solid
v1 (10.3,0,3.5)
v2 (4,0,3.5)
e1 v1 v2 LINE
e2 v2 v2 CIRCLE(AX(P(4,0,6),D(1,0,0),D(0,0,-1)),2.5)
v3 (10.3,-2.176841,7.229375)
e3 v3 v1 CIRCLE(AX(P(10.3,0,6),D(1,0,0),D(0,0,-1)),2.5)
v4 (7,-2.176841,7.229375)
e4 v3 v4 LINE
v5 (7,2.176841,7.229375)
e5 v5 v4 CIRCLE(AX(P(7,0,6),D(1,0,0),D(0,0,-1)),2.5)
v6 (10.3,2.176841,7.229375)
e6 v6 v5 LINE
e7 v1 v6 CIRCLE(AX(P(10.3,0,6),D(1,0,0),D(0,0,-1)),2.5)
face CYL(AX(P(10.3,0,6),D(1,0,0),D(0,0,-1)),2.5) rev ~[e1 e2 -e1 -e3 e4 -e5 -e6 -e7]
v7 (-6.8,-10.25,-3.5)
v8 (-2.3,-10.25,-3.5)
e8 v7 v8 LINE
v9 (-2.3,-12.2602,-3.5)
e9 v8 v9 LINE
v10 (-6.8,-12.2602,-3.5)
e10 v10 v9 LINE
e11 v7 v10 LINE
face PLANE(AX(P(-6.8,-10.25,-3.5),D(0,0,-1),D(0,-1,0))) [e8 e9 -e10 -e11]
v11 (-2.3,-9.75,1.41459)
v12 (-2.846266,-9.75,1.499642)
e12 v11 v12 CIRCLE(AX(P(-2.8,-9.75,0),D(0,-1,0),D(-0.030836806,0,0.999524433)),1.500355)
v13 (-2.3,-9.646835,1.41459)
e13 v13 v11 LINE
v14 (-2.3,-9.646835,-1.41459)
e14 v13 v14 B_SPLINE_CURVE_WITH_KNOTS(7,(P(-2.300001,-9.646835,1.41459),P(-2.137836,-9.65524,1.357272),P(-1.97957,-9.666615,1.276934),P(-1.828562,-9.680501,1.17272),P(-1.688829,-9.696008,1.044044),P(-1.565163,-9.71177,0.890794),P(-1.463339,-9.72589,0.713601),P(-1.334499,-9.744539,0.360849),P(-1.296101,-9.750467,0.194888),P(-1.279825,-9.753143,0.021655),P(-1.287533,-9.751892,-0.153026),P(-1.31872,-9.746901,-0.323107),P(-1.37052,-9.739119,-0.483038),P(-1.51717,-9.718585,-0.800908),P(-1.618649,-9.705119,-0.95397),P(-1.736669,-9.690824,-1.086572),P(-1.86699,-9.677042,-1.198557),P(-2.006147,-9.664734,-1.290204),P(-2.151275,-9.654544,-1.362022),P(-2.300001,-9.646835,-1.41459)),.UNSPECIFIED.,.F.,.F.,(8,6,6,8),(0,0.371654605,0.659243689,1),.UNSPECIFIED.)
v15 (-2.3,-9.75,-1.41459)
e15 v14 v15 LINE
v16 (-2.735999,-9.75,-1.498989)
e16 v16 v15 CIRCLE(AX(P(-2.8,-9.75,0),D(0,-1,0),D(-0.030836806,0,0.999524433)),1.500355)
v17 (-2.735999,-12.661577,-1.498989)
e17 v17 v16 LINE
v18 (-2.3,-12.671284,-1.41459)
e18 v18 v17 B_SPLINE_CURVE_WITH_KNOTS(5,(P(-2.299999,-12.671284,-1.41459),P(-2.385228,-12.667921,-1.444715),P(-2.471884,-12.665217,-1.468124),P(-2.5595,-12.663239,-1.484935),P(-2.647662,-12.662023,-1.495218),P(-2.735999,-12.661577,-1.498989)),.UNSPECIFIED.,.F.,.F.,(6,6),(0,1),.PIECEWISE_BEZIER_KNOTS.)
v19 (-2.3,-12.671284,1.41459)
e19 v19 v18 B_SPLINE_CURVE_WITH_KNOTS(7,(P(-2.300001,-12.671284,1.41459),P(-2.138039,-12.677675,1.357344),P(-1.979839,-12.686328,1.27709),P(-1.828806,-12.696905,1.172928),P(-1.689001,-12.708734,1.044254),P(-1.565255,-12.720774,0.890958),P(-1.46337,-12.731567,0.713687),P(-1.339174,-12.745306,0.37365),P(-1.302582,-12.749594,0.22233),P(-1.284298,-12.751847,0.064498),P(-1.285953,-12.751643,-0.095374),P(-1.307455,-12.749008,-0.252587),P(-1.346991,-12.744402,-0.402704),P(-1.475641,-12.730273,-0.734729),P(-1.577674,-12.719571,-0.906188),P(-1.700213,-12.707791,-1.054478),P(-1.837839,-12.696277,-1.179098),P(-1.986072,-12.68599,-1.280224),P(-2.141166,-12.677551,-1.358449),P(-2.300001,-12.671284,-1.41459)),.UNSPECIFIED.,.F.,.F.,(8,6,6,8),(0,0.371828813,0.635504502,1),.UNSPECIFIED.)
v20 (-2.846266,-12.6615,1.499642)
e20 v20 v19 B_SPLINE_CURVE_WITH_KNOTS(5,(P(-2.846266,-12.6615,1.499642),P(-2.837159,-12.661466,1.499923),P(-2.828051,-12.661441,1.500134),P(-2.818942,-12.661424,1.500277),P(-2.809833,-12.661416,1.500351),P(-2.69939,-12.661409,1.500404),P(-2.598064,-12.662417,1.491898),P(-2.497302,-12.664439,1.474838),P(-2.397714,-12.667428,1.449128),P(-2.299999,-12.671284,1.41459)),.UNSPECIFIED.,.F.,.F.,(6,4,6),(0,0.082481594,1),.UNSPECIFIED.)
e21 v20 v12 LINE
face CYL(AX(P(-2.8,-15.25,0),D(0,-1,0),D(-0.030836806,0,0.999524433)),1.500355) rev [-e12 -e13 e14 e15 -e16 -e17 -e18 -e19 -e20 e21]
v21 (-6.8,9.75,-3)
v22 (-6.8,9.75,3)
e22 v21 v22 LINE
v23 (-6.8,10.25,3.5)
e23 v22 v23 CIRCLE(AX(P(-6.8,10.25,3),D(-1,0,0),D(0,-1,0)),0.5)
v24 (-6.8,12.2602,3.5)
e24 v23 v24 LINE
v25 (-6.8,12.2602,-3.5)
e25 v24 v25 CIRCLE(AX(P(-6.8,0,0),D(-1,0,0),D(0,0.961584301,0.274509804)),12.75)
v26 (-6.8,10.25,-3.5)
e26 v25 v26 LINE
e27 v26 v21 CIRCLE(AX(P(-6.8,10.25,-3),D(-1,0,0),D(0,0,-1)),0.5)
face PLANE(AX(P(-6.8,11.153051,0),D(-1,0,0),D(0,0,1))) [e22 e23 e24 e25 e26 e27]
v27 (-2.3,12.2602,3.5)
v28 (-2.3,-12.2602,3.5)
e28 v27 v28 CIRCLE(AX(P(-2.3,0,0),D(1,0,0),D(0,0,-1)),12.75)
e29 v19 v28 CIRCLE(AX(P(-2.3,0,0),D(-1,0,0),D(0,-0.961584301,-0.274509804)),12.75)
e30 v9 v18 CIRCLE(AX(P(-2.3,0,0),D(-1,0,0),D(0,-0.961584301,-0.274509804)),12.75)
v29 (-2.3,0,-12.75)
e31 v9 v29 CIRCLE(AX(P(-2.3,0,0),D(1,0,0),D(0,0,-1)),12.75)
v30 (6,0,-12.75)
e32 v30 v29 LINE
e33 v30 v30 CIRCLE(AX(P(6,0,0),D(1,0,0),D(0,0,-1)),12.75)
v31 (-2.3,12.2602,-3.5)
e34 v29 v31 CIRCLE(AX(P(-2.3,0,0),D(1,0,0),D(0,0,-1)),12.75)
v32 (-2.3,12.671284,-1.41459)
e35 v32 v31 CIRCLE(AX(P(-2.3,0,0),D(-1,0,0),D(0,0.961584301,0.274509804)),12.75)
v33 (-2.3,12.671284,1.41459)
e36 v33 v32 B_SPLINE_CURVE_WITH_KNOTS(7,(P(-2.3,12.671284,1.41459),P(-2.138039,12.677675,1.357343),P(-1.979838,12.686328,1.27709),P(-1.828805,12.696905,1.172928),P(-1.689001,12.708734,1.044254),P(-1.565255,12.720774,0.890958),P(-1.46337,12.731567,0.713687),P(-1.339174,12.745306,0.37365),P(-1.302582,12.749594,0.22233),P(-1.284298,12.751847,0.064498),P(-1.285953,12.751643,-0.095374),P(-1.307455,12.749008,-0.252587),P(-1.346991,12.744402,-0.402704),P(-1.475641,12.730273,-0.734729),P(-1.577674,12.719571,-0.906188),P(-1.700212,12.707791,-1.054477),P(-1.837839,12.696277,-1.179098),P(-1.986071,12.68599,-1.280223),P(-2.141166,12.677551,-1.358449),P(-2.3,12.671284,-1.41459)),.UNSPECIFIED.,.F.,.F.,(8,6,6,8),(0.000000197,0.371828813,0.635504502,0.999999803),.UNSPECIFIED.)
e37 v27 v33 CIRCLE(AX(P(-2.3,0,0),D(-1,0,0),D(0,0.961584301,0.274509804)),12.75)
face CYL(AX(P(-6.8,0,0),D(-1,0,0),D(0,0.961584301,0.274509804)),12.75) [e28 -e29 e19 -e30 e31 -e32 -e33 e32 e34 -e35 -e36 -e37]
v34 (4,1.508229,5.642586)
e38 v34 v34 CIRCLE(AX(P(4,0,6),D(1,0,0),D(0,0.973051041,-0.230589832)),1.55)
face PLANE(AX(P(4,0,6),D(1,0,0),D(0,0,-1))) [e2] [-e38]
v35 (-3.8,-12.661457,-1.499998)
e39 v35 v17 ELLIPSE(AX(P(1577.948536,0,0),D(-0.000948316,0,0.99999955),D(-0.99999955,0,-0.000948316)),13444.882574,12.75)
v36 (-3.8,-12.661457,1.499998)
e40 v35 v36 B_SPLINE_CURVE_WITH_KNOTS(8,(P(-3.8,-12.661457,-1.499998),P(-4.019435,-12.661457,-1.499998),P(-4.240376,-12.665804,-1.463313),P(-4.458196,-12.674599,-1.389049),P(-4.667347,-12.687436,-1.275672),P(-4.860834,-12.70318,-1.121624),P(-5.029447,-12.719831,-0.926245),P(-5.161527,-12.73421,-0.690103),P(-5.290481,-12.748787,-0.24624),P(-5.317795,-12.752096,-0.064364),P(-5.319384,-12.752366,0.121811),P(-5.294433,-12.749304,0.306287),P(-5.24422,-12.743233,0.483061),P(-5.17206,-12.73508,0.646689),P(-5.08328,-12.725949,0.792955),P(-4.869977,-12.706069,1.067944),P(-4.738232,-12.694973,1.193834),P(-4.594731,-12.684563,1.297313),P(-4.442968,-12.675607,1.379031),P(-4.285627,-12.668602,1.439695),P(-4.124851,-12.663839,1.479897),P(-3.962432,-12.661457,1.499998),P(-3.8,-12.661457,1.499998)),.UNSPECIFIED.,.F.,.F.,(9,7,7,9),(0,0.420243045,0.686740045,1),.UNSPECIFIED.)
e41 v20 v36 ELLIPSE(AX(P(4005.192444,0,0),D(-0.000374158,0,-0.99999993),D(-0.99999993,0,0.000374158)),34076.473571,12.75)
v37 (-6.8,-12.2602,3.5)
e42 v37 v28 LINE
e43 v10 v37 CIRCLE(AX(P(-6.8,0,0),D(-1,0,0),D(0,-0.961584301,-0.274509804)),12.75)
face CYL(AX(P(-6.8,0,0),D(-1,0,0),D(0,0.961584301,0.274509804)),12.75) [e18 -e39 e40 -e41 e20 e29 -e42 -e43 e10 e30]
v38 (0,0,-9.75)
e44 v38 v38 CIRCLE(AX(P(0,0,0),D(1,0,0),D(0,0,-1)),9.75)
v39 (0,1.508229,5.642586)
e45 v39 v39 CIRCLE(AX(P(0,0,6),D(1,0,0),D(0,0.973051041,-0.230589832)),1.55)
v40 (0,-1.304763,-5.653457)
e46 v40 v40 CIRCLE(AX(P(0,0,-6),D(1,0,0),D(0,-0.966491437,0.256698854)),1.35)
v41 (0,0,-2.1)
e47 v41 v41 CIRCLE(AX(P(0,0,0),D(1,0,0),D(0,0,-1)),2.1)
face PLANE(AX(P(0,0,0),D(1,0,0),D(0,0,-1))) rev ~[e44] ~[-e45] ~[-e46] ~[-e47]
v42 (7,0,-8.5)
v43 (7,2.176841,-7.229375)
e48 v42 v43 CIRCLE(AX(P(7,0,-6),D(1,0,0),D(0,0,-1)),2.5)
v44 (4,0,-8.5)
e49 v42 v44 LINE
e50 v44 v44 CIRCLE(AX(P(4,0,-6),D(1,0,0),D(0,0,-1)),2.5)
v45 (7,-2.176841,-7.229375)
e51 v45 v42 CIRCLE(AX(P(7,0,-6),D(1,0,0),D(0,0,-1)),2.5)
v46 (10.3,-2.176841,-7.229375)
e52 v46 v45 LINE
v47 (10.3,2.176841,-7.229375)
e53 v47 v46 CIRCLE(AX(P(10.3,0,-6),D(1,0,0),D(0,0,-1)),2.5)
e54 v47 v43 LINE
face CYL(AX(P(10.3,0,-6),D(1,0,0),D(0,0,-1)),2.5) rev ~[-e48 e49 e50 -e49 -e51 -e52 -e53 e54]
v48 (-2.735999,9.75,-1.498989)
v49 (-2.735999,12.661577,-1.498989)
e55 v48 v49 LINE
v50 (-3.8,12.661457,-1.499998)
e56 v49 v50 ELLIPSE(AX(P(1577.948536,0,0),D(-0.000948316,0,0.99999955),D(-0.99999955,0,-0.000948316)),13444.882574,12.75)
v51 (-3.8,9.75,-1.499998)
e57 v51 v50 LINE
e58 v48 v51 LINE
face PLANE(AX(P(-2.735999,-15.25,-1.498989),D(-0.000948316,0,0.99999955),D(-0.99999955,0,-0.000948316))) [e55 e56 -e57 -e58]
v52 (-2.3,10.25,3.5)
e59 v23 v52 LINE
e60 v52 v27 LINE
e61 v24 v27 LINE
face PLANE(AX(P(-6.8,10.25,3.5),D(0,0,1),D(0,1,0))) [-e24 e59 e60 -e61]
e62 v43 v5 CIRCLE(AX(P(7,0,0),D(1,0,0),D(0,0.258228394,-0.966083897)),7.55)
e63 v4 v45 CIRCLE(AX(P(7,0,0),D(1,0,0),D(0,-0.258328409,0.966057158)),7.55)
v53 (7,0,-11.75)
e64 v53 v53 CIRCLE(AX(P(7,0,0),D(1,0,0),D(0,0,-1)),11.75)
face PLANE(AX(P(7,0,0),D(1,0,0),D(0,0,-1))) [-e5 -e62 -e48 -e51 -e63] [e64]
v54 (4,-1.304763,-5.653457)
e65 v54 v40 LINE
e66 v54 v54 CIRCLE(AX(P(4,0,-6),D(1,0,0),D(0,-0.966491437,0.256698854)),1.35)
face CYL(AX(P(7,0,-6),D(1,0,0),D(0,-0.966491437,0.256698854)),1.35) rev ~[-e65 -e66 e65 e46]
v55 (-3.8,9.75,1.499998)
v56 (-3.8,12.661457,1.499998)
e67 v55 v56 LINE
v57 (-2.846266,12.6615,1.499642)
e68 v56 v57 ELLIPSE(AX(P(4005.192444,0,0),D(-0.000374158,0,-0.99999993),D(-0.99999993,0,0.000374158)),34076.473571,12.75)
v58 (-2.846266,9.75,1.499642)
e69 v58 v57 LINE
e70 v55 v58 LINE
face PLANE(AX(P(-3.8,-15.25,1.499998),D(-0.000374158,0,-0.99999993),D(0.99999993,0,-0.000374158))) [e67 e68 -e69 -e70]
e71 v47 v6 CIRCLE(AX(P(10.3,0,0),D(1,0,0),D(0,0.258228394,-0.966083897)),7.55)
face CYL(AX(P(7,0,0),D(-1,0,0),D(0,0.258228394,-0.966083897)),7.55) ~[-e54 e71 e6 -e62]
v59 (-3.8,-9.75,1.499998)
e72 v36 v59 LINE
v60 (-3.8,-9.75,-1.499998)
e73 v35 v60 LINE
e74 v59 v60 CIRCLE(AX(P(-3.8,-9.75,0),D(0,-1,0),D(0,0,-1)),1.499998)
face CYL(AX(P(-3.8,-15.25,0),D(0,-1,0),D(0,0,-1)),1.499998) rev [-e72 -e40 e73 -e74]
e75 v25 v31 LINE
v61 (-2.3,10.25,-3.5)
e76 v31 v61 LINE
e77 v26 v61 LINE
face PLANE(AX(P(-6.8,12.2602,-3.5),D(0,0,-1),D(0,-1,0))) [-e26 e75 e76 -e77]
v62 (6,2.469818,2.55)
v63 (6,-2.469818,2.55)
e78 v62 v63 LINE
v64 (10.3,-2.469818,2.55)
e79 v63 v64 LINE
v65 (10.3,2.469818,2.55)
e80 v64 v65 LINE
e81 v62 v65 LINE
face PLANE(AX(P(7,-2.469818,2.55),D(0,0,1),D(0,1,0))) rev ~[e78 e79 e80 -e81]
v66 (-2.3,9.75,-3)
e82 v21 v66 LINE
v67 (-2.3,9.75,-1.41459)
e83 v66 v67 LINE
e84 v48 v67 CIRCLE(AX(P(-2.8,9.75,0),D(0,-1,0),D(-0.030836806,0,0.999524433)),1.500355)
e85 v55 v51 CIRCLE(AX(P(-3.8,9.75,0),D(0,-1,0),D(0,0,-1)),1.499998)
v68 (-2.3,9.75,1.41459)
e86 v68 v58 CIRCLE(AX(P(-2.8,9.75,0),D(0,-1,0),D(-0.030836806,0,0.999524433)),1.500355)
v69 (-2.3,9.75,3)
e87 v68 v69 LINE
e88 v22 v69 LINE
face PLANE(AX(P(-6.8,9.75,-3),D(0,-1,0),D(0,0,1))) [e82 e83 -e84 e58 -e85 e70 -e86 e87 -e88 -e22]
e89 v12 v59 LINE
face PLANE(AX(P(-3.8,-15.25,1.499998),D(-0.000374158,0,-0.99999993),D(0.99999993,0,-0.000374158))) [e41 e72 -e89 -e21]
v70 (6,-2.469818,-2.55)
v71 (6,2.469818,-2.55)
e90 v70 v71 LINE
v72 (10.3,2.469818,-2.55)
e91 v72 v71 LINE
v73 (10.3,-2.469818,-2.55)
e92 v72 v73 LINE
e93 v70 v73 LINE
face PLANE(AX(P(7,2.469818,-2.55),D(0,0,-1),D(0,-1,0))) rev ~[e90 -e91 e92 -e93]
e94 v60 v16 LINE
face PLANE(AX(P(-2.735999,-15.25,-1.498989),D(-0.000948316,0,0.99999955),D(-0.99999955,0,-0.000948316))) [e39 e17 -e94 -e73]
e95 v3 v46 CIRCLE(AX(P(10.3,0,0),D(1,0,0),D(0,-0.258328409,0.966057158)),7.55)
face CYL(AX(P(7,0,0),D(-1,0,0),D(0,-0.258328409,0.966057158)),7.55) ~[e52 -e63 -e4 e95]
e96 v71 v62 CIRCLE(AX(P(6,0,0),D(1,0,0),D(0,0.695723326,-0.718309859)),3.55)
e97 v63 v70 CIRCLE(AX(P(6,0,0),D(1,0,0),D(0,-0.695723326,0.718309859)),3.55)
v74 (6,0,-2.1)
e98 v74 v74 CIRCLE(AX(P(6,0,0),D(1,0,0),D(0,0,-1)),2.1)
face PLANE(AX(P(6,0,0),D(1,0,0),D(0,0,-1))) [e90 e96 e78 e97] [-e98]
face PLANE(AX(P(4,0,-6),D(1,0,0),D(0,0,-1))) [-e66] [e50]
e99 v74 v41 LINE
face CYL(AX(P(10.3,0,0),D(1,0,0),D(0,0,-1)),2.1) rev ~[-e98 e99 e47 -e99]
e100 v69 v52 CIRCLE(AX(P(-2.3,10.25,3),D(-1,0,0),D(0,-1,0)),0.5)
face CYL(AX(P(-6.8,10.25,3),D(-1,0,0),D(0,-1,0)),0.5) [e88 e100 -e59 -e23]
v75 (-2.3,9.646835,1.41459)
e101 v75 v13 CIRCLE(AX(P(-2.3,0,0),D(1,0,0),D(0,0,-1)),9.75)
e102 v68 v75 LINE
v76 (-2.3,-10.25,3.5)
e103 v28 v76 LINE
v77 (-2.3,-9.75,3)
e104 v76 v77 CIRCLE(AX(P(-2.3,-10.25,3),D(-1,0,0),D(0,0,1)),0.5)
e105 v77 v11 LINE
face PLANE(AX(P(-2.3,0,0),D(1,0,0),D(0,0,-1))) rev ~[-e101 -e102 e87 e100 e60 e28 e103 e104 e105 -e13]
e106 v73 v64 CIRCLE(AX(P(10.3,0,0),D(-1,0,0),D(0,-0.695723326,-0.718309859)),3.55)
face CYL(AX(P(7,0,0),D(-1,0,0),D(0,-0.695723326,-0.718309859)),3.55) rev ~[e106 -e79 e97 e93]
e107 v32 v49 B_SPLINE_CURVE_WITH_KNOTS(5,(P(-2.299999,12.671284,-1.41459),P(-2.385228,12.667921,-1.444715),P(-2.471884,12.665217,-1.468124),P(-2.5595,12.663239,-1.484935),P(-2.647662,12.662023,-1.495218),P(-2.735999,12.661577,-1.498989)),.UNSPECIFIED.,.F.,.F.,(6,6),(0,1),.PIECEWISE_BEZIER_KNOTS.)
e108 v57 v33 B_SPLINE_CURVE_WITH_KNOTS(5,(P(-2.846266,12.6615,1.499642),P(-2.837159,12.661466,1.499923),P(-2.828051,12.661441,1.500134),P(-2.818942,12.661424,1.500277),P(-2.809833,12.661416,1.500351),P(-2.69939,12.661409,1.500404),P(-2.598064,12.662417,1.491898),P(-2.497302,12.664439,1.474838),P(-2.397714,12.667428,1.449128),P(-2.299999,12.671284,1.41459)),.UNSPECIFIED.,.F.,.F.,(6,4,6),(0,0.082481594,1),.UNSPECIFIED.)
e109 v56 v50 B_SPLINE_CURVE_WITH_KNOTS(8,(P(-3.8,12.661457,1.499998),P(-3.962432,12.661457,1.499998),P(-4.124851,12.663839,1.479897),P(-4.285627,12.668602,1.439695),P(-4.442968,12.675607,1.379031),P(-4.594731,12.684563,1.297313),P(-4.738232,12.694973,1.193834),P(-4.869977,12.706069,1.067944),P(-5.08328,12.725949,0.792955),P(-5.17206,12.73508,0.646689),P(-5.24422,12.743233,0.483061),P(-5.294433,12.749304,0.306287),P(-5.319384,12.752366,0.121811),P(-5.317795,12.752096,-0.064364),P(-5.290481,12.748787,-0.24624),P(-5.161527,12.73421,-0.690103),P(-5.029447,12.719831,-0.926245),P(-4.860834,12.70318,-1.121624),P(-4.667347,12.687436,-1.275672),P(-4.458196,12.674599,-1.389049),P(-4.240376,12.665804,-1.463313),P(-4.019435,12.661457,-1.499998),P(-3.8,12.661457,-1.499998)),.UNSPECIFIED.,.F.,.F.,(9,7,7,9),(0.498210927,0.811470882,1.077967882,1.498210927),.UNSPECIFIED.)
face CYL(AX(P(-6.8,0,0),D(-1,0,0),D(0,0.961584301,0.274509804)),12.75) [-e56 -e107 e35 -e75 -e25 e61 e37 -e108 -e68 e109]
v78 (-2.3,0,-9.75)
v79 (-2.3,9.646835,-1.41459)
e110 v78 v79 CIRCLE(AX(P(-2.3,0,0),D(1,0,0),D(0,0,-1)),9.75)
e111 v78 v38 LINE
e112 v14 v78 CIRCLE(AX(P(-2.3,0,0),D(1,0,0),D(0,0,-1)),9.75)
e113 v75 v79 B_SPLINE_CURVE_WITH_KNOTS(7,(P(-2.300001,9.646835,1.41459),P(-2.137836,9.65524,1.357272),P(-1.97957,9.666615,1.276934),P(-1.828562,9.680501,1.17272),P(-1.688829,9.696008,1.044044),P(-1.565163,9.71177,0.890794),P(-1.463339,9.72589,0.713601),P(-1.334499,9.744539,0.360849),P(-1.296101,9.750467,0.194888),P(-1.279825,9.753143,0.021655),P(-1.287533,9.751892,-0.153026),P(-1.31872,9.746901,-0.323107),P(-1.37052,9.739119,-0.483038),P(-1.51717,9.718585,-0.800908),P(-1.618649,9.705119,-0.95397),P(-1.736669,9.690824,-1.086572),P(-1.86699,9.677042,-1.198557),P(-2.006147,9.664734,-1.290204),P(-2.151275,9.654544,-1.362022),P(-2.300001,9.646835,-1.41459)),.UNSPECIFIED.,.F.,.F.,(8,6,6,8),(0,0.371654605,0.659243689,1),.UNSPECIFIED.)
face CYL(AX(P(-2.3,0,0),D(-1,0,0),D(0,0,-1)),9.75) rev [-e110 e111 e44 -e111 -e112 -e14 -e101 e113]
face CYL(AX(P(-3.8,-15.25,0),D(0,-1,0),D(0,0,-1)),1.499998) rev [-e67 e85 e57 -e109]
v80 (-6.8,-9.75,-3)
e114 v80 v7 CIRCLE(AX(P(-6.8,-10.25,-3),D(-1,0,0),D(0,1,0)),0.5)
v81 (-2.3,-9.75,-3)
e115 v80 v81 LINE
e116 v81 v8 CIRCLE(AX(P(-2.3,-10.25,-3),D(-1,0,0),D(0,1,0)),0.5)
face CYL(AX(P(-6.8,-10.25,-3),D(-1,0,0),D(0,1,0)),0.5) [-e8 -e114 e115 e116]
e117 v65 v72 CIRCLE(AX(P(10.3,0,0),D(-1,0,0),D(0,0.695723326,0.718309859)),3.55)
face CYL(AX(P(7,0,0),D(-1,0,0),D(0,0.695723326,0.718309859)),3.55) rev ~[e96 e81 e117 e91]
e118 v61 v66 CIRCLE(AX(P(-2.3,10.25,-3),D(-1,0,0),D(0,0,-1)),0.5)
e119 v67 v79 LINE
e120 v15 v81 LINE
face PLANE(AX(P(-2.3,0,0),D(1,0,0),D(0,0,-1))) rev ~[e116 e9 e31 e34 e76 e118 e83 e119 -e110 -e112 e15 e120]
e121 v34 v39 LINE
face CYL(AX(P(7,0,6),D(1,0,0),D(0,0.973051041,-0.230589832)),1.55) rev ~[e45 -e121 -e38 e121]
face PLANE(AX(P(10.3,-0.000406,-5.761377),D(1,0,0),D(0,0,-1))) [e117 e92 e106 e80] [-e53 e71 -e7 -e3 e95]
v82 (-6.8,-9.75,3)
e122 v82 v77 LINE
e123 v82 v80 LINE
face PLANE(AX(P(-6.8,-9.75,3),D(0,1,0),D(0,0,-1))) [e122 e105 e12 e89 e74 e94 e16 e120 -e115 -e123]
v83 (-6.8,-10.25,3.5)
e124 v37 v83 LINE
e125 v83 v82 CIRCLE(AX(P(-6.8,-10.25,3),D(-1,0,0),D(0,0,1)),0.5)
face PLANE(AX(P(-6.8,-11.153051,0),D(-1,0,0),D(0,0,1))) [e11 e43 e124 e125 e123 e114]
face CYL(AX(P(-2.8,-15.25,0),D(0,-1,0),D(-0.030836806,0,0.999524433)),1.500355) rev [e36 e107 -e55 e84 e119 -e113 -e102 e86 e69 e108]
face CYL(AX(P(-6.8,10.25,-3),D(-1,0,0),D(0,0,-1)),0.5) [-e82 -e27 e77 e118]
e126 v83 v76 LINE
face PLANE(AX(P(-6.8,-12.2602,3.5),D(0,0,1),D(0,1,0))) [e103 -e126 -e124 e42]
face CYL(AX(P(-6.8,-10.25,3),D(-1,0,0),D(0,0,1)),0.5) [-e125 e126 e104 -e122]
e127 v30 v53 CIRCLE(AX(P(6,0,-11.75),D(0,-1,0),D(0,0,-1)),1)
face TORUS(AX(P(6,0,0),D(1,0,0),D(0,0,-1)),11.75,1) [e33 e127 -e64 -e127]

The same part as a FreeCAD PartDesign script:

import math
import FreeCAD as App
import Part
import Sketcher
Q = App.Units.Quantity


def edges_at(feature, points):
    """Names of the edges that pass closest to the given points."""
    edges = feature.Shape.Edges
    near = lambda p: min(range(len(edges)), key=lambda i: edges[i].distToShape(Part.Vertex(*p))[0])
    return sorted({f"Edge{near(p) + 1}" for p in points})

doc = App.newDocument("Part")
body = doc.addObject("PartDesign::Body", "Body")

# Sketch on YZ plane
sketch1 = body.newObject("Sketcher::SketchObject", "Sketch")
sketch1.AttachmentSupport = (doc.getObject("YZ_Plane"), [""])
sketch1.MapMode = "FlatFace"
sketch1.addGeometry(Part.Circle(App.Vector(0, 0, 0), App.Vector(0, 0, 1), 12.75), False)
sketch1.addConstraint(Sketcher.Constraint("Coincident", 0, 3, -1, 1))
sketch1.addConstraint(Sketcher.Constraint("Diameter", 0, Q("25.5 mm")))
pad1 = body.newObject("PartDesign::Pad", "Pad")
pad1.Profile = sketch1
pad1.Length = 7

# Sketch on YZ plane
sketch2 = body.newObject("Sketcher::SketchObject", "Sketch001")
sketch2.AttachmentSupport = (doc.getObject("YZ_Plane"), [""])
sketch2.MapMode = "FlatFace"
sketch2.AttachmentOffset = App.Placement(App.Vector(0, 0, -2.3), App.Rotation())
sketch2.addGeometry(Part.Circle(App.Vector(0, 0, 0), App.Vector(0, 0, 1), 12.75), False)
sketch2.addGeometry(Part.Circle(App.Vector(0, 0, 0), App.Vector(0, 0, 1), 9.75), False)
sketch2.addConstraint(Sketcher.Constraint("Coincident", 0, 3, -1, 1))
sketch2.addConstraint(Sketcher.Constraint("Coincident", 1, 3, -1, 1))
sketch2.addConstraint(Sketcher.Constraint("Diameter", 0, Q("25.5 mm")))
sketch2.addConstraint(Sketcher.Constraint("Diameter", 1, Q("19.5 mm")))
pad2 = body.newObject("PartDesign::Pad", "Pad001")
pad2.Profile = sketch2
pad2.Length = 2.3

# Sketch on YZ plane
sketch3 = body.newObject("Sketcher::SketchObject", "Sketch002")
sketch3.AttachmentSupport = (doc.getObject("YZ_Plane"), [""])
sketch3.MapMode = "FlatFace"
sketch3.AttachmentOffset = App.Placement(App.Vector(0, 0, 7), App.Rotation())
sketch3.addGeometry(Part.LineSegment(App.Vector(-1.950379, -7.293732, 0), App.Vector(-1.494888, -5.590353, 0)), False)
sketch3.addGeometry(Part.ArcOfCircle(Part.Circle(App.Vector(0, -6, 0), App.Vector(0, 0, 1), 1.55), math.radians(13.3318), math.radians(164.675322)), False)
sketch3.addGeometry(Part.LineSegment(App.Vector(1.508229, -5.642586, 0), App.Vector(1.949624, -7.293933, 0)), False)
sketch3.addGeometry(Part.ArcOfCircle(Part.Circle(App.Vector(0, 0, 0), App.Vector(0, 0, 1), 7.55), math.radians(-75.035033), math.radians(75.035033)), False)
sketch3.addGeometry(Part.LineSegment(App.Vector(1.949624, 7.293933, 0), App.Vector(1.508229, 5.642586, 0)), False)
sketch3.addGeometry(Part.ArcOfCircle(Part.Circle(App.Vector(0, 6, 0), App.Vector(0, 0, 1), 1.55), math.radians(-164.675322), math.radians(-13.3318)), False)
sketch3.addGeometry(Part.LineSegment(App.Vector(-1.494888, 5.590353, 0), App.Vector(-1.950379, 7.293732, 0)), False)
sketch3.addGeometry(Part.ArcOfCircle(Part.Circle(App.Vector(0, 0, 0), App.Vector(0, 0, 1), 7.55), math.radians(104.970899), math.radians(255.029101)), False)
sketch3.addGeometry(Part.ArcOfCircle(Part.Circle(App.Vector(0, 0, 0), App.Vector(0, 0, 1), 3.55), math.radians(134.084885), math.radians(225.915115)), False)
sketch3.addGeometry(Part.LineSegment(App.Vector(-2.469818, 2.55, 0), App.Vector(2.469818, 2.55, 0)), False)
sketch3.addGeometry(Part.ArcOfCircle(Part.Circle(App.Vector(0, 0, 0), App.Vector(0, 0, 1), 3.55), math.radians(-45.915115), math.radians(45.915115)), False)
sketch3.addGeometry(Part.LineSegment(App.Vector(2.469818, -2.55, 0), App.Vector(-2.469818, -2.55, 0)), False)
sketch3.addConstraint(Sketcher.Constraint("Coincident", 0, 2, 1, 2))
sketch3.addConstraint(Sketcher.Constraint("Coincident", 1, 1, 2, 1))
sketch3.addConstraint(Sketcher.Constraint("Coincident", 2, 2, 3, 1))
sketch3.addConstraint(Sketcher.Constraint("Coincident", 3, 2, 4, 1))
sketch3.addConstraint(Sketcher.Constraint("Coincident", 4, 2, 5, 2))
sketch3.addConstraint(Sketcher.Constraint("Coincident", 5, 1, 6, 1))
sketch3.addConstraint(Sketcher.Constraint("Coincident", 6, 2, 7, 1))
sketch3.addConstraint(Sketcher.Constraint("Coincident", 7, 2, 0, 1))
sketch3.addConstraint(Sketcher.Constraint("Coincident", 8, 1, 9, 1))
sketch3.addConstraint(Sketcher.Constraint("Coincident", 9, 2, 10, 2))
sketch3.addConstraint(Sketcher.Constraint("Coincident", 10, 1, 11, 1))
sketch3.addConstraint(Sketcher.Constraint("Coincident", 11, 2, 8, 2))
sketch3.addConstraint(Sketcher.Constraint("Horizontal", 9))
sketch3.addConstraint(Sketcher.Constraint("Horizontal", 11))
sketch3.addConstraint(Sketcher.Constraint("Coincident", 3, 3, -1, 1))
sketch3.addConstraint(Sketcher.Constraint("Coincident", 7, 3, -1, 1))
sketch3.addConstraint(Sketcher.Constraint("Coincident", 8, 3, -1, 1))
sketch3.addConstraint(Sketcher.Constraint("Coincident", 10, 3, -1, 1))
sketch3.addConstraint(Sketcher.Constraint("Equal", 1, 5))
sketch3.addConstraint(Sketcher.Constraint("Equal", 3, 7))
sketch3.addConstraint(Sketcher.Constraint("Equal", 8, 10))
sketch3.addConstraint(Sketcher.Constraint("Symmetric", 1, 3, 5, 3, -1, 1))
sketch3.addConstraint(Sketcher.Constraint("Symmetric", 1, 1, 4, 2, -1))
sketch3.addConstraint(Sketcher.Constraint("Vertical", 2, 2, 3, 2))
sketch3.addConstraint(Sketcher.Constraint("Vertical", 0, 2, 5, 1))
sketch3.addConstraint(Sketcher.Constraint("Vertical", 6, 2, 7, 2))
sketch3.addConstraint(Sketcher.Constraint("Vertical", 9, 2, 10, 1))
sketch3.addConstraint(Sketcher.Constraint("Radius", 1, Q("1.55 mm")))
sketch3.addConstraint(Sketcher.Constraint("Radius", 3, Q("7.55 mm")))
sketch3.addConstraint(Sketcher.Constraint("Radius", 8, Q("3.55 mm")))
sketch3.addConstraint(Sketcher.Constraint("DistanceY", 1, 3, -1, 1, Q("6 mm")))
sketch3.addConstraint(Sketcher.Constraint("DistanceY", -1, 1, 8, 1, Q("2.55 mm")))
sketch3.addConstraint(Sketcher.Constraint("DistanceY", 6, 2, 3, 2, Q("0.000202 mm")))
sketch3.addConstraint(Sketcher.Constraint("Distance", 2, Q("1.709321 mm")))
sketch3.addConstraint(Sketcher.Constraint("DistanceX", 6, 2, -1, 1, Q("1.950379 mm")))
sketch3.addConstraint(Sketcher.Constraint("DistanceY", 2, 2, 0, 2, Q("1.703581 mm")))
pad3 = body.newObject("PartDesign::Pad", "Pad002")
pad3.Profile = sketch3
pad3.Length = 3.3
doc.recompute()

fillet = body.newObject("PartDesign::Fillet", "Fillet")
fillet.Base = (pad3, edges_at(pad3, [(7, 0, 12.75)]))
fillet.Radius = 1

# Sketch on YZ plane
sketch4 = body.newObject("Sketcher::SketchObject", "Sketch003")
sketch4.AttachmentSupport = (doc.getObject("YZ_Plane"), [""])
sketch4.MapMode = "FlatFace"
sketch4.AttachmentOffset = App.Placement(App.Vector(0, 0, 7), App.Rotation())
sketch4.addGeometry(Part.ArcOfCircle(Part.Circle(App.Vector(0, -6, 0), App.Vector(0, 0, 1), 1.35), math.radians(14.874274), math.radians(165.125726)), False)
sketch4.addGeometry(Part.LineSegment(App.Vector(1.304763, -5.653457, 0), App.Vector(1.755363, -7.35, 0)), False)
sketch4.addGeometry(Part.LineSegment(App.Vector(1.755363, -7.35, 0), App.Vector(1.949624, -7.293933, 0)), False)
sketch4.addGeometry(Part.LineSegment(App.Vector(1.949624, -7.293933, 0), App.Vector(1.508229, -5.642586, 0)), False)
sketch4.addGeometry(Part.ArcOfCircle(Part.Circle(App.Vector(0, -6, 0), App.Vector(0, 0, 1), 1.55), math.radians(13.3318), math.radians(165.38288)), False)
sketch4.addGeometry(Part.LineSegment(App.Vector(-1.499832, -5.608844, 0), App.Vector(-1.950379, -7.293732, 0)), False)
sketch4.addGeometry(Part.LineSegment(App.Vector(-1.950379, -7.293732, 0), App.Vector(-1.759538, -7.35, 0)), False)
sketch4.addGeometry(Part.LineSegment(App.Vector(-1.759538, -7.35, 0), App.Vector(-1.304763, -5.653457, 0)), False)
sketch4.addConstraint(Sketcher.Constraint("Tangent", 0, 1, 1, 1))
sketch4.addConstraint(Sketcher.Constraint("Coincident", 1, 2, 2, 1))
sketch4.addConstraint(Sketcher.Constraint("Coincident", 2, 2, 3, 1))
sketch4.addConstraint(Sketcher.Constraint("Coincident", 3, 2, 4, 1))
sketch4.addConstraint(Sketcher.Constraint("Coincident", 4, 2, 5, 1))
sketch4.addConstraint(Sketcher.Constraint("Coincident", 5, 2, 6, 1))
sketch4.addConstraint(Sketcher.Constraint("Coincident", 6, 2, 7, 1))
sketch4.addConstraint(Sketcher.Constraint("Coincident", 7, 2, 0, 2))
sketch4.addConstraint(Sketcher.Constraint("Coincident", 4, 3, 0, 3))
sketch4.addConstraint(Sketcher.Constraint("Symmetric", 0, 1, 7, 2, -2))
sketch4.addConstraint(Sketcher.Constraint("Horizontal", 1, 2, 6, 2))
sketch4.addConstraint(Sketcher.Constraint("Radius", 0, Q("1.35 mm")))
sketch4.addConstraint(Sketcher.Constraint("Radius", 4, Q("1.55 mm")))
sketch4.addConstraint(Sketcher.Constraint("DistanceY", 0, 3, -1, 1, Q("6 mm")))
sketch4.addConstraint(Sketcher.Constraint("DistanceY", 1, 2, -1, 1, Q("7.35 mm")))
sketch4.addConstraint(Sketcher.Constraint("DistanceX", 0, 1, 1, 2, Q("0.4506 mm")))
sketch4.addConstraint(Sketcher.Constraint("DistanceX", 6, 2, 0, 1, Q("3.064301 mm")))
sketch4.addConstraint(Sketcher.Constraint("Distance", 2, Q("0.20219 mm")))
sketch4.addConstraint(Sketcher.Constraint("Distance", 3, Q("1.709321 mm")))
sketch4.addConstraint(Sketcher.Constraint("DistanceX", -1, 1, 3, 2, Q("1.508229 mm")))
sketch4.addConstraint(Sketcher.Constraint("DistanceX", 5, 2, -1, 1, Q("1.950379 mm")))
sketch4.addConstraint(Sketcher.Constraint("DistanceY", 5, 2, -1, 1, Q("7.293732 mm")))
sketch4.addConstraint(Sketcher.Constraint("DistanceX", 4, 2, 3, 2, Q("3.008062 mm")))
pad4 = body.newObject("PartDesign::Pad", "Pad003")
pad4.Profile = sketch4
pad4.Length = 3.3

# Sketch on YZ plane
sketch5 = body.newObject("Sketcher::SketchObject", "Sketch004")
sketch5.AttachmentSupport = (doc.getObject("YZ_Plane"), [""])
sketch5.MapMode = "FlatFace"
sketch5.AttachmentOffset = App.Placement(App.Vector(0, 0, 7), App.Rotation())
sketch5.addGeometry(Part.Circle(App.Vector(0, -6, 0), App.Vector(0, 0, 1), 1.35), False)
sketch5.addConstraint(Sketcher.Constraint("PointOnObject", 0, 3, -2))
sketch5.addConstraint(Sketcher.Constraint("Diameter", 0, Q("2.7 mm")))
sketch5.addConstraint(Sketcher.Constraint("DistanceY", 0, 3, -1, 1, Q("6 mm")))
pocket1 = body.newObject("PartDesign::Pocket", "Pocket")
pocket1.Profile = sketch5
pocket1.Type = "UpToFirst"

# Sketch on YZ plane
sketch6 = body.newObject("Sketcher::SketchObject", "Sketch005")
sketch6.AttachmentSupport = (doc.getObject("YZ_Plane"), [""])
sketch6.MapMode = "FlatFace"
sketch6.AttachmentOffset = App.Placement(App.Vector(0, 0, 7), App.Rotation())
sketch6.addGeometry(Part.Circle(App.Vector(0, 6, 0), App.Vector(0, 0, 1), 1.55), False)
sketch6.addConstraint(Sketcher.Constraint("PointOnObject", 0, 3, -2))
sketch6.addConstraint(Sketcher.Constraint("Diameter", 0, Q("3.1 mm")))
sketch6.addConstraint(Sketcher.Constraint("DistanceY", -1, 1, 0, 3, Q("6 mm")))
pocket2 = body.newObject("PartDesign::Pocket", "Pocket001")
pocket2.Profile = sketch6
pocket2.Type = "UpToFirst"

# Sketch on YZ plane
sketch7 = body.newObject("Sketcher::SketchObject", "Sketch006")
sketch7.AttachmentSupport = (doc.getObject("YZ_Plane"), [""])
sketch7.MapMode = "FlatFace"
sketch7.AttachmentOffset = App.Placement(App.Vector(0, 0, 6), App.Rotation())
sketch7.addGeometry(Part.LineSegment(App.Vector(-2.469818, -2.55, 0), App.Vector(2.469818, -2.55, 0)), False)
sketch7.addGeometry(Part.ArcOfCircle(Part.Circle(App.Vector(0, 0, 0), App.Vector(0, 0, 1), 3.55), math.radians(-45.915115), math.radians(45.915115)), False)
sketch7.addGeometry(Part.LineSegment(App.Vector(2.469818, 2.55, 0), App.Vector(-2.469818, 2.55, 0)), False)
sketch7.addGeometry(Part.ArcOfCircle(Part.Circle(App.Vector(0, 0, 0), App.Vector(0, 0, 1), 3.55), math.radians(134.084885), math.radians(225.915115)), False)
sketch7.addConstraint(Sketcher.Constraint("Coincident", 0, 2, 1, 1))
sketch7.addConstraint(Sketcher.Constraint("Coincident", 1, 2, 2, 1))
sketch7.addConstraint(Sketcher.Constraint("Coincident", 2, 2, 3, 1))
sketch7.addConstraint(Sketcher.Constraint("Coincident", 3, 2, 0, 1))
sketch7.addConstraint(Sketcher.Constraint("Horizontal", 0))
sketch7.addConstraint(Sketcher.Constraint("Horizontal", 2))
sketch7.addConstraint(Sketcher.Constraint("Coincident", 1, 3, -1, 1))
sketch7.addConstraint(Sketcher.Constraint("Coincident", 3, 3, -1, 1))
sketch7.addConstraint(Sketcher.Constraint("Equal", 1, 3))
sketch7.addConstraint(Sketcher.Constraint("Vertical", 0, 2, 1, 2))
sketch7.addConstraint(Sketcher.Constraint("Radius", 1, Q("3.55 mm")))
sketch7.addConstraint(Sketcher.Constraint("DistanceY", 0, 2, 1, 2, Q("5.1 mm")))
pocket3 = body.newObject("PartDesign::Pocket", "Pocket002")
pocket3.Profile = sketch7
pocket3.Length = 1
pocket3.Reversed = True

# Sketch on YZ plane
sketch8 = body.newObject("Sketcher::SketchObject", "Sketch007")
sketch8.AttachmentSupport = (doc.getObject("YZ_Plane"), [""])
sketch8.MapMode = "FlatFace"
sketch8.AttachmentOffset = App.Placement(App.Vector(0, 0, -6.8), App.Rotation())
sketch8.addGeometry(Part.ArcOfCircle(Part.Circle(App.Vector(10.25, -3, 0), App.Vector(0, 0, 1), 0.5), math.radians(180), math.radians(270)), False)
sketch8.addGeometry(Part.LineSegment(App.Vector(9.75, -3, 0), App.Vector(9.75, 3, 0)), False)
sketch8.addGeometry(Part.ArcOfCircle(Part.Circle(App.Vector(10.25, 3, 0), App.Vector(0, 0, 1), 0.5), math.radians(90), math.radians(180)), False)
sketch8.addGeometry(Part.LineSegment(App.Vector(10.25, 3.5, 0), App.Vector(12.2602, 3.5, 0)), False)
sketch8.addGeometry(Part.ArcOfCircle(Part.Circle(App.Vector(0, 0, 0), App.Vector(0, 0, 1), 12.75), math.radians(-15.932804), math.radians(15.932804)), False)
sketch8.addGeometry(Part.LineSegment(App.Vector(12.2602, -3.5, 0), App.Vector(10.25, -3.5, 0)), False)
sketch8.addGeometry(Part.LineSegment(App.Vector(-10.25, -3.5, 0), App.Vector(-12.2602, -3.5, 0)), False)
sketch8.addGeometry(Part.ArcOfCircle(Part.Circle(App.Vector(0, 0, 0), App.Vector(0, 0, 1), 12.75), math.radians(164.067196), math.radians(195.932804)), False)
sketch8.addGeometry(Part.LineSegment(App.Vector(-12.2602, 3.5, 0), App.Vector(-10.25, 3.5, 0)), False)
sketch8.addGeometry(Part.ArcOfCircle(Part.Circle(App.Vector(-10.25, 3, 0), App.Vector(0, 0, 1), 0.5), math.radians(0), math.radians(90)), False)
sketch8.addGeometry(Part.LineSegment(App.Vector(-9.75, 3, 0), App.Vector(-9.75, -3, 0)), False)
sketch8.addGeometry(Part.ArcOfCircle(Part.Circle(App.Vector(-10.25, -3, 0), App.Vector(0, 0, 1), 0.5), math.radians(-90), math.radians(0)), False)
sketch8.addConstraint(Sketcher.Constraint("Tangent", 0, 1, 1, 1))
sketch8.addConstraint(Sketcher.Constraint("Tangent", 1, 2, 2, 2))
sketch8.addConstraint(Sketcher.Constraint("Tangent", 2, 1, 3, 1))
sketch8.addConstraint(Sketcher.Constraint("Coincident", 3, 2, 4, 2))
sketch8.addConstraint(Sketcher.Constraint("Coincident", 4, 1, 5, 1))
sketch8.addConstraint(Sketcher.Constraint("Tangent", 5, 2, 0, 2))
sketch8.addConstraint(Sketcher.Constraint("Coincident", 6, 2, 7, 2))
sketch8.addConstraint(Sketcher.Constraint("Coincident", 7, 1, 8, 1))
sketch8.addConstraint(Sketcher.Constraint("Tangent", 8, 2, 9, 2))
sketch8.addConstraint(Sketcher.Constraint("Tangent", 9, 1, 10, 1))
sketch8.addConstraint(Sketcher.Constraint("Tangent", 10, 2, 11, 2))
sketch8.addConstraint(Sketcher.Constraint("Tangent", 11, 1, 6, 1))
sketch8.addConstraint(Sketcher.Constraint("Vertical", 1))
sketch8.addConstraint(Sketcher.Constraint("Horizontal", 3))
sketch8.addConstraint(Sketcher.Constraint("Horizontal", 5))
sketch8.addConstraint(Sketcher.Constraint("Horizontal", 6))
sketch8.addConstraint(Sketcher.Constraint("Horizontal", 8))
sketch8.addConstraint(Sketcher.Constraint("Vertical", 10))
sketch8.addConstraint(Sketcher.Constraint("Coincident", 4, 3, -1, 1))
sketch8.addConstraint(Sketcher.Constraint("Coincident", 7, 3, -1, 1))
sketch8.addConstraint(Sketcher.Constraint("Equal", 0, 2))
sketch8.addConstraint(Sketcher.Constraint("Equal", 4, 7))
sketch8.addConstraint(Sketcher.Constraint("Equal", 2, 9))
sketch8.addConstraint(Sketcher.Constraint("Equal", 9, 11))
sketch8.addConstraint(Sketcher.Constraint("Symmetric", 0, 3, 9, 3, -1, 1))
sketch8.addConstraint(Sketcher.Constraint("Horizontal", 2, 3, 9, 3))
sketch8.addConstraint(Sketcher.Constraint("Horizontal", 0, 3, 11, 3))
sketch8.addConstraint(Sketcher.Constraint("Radius", 0, Q("0.5 mm")))
sketch8.addConstraint(Sketcher.Constraint("DistanceY", 1, 1, 1, 2, Q("6 mm")))
sketch8.addConstraint(Sketcher.Constraint("Radius", 4, Q("12.75 mm")))
sketch8.addConstraint(Sketcher.Constraint("DistanceX", 11, 3, 0, 1, Q("20 mm")))
pad5 = body.newObject("PartDesign::Pad", "Pad004")
pad5.Profile = sketch8
pad5.Length = 4.5

# Sketch on XZ plane
sketch9 = body.newObject("Sketcher::SketchObject", "Sketch008")
sketch9.AttachmentSupport = (doc.getObject("XZ_Plane"), [""])
sketch9.MapMode = "FlatFace"
sketch9.AttachmentOffset = App.Placement(App.Vector(0, 0, -9.75), App.Rotation())
sketch9.addGeometry(Part.ArcOfCircle(Part.Circle(App.Vector(-3.8, 0, 0), App.Vector(0, 0, 1), 1.499998), math.radians(90), math.radians(270)), False)
sketch9.addGeometry(Part.LineSegment(App.Vector(-3.8, 1.499998, 0), App.Vector(-2.846266, 1.499642, 0)), False)
sketch9.addGeometry(Part.ArcOfCircle(Part.Circle(App.Vector(-2.8, 0, 0), App.Vector(0, 0, 1), 1.500355), math.radians(-87.555171), math.radians(91.767099)), False)
sketch9.addGeometry(Part.LineSegment(App.Vector(-2.735999, -1.498989, 0), App.Vector(-3.8, -1.499998, 0)), False)
sketch9.addConstraint(Sketcher.Constraint("Coincident", 0, 1, 1, 1))
sketch9.addConstraint(Sketcher.Constraint("Coincident", 1, 2, 2, 2))
sketch9.addConstraint(Sketcher.Constraint("Coincident", 2, 1, 3, 1))
sketch9.addConstraint(Sketcher.Constraint("Coincident", 3, 2, 0, 2))
sketch9.addConstraint(Sketcher.Constraint("Symmetric", 0, 1, 3, 2, -1))
sketch9.addConstraint(Sketcher.Constraint("PointOnObject", 2, 3, -1))
sketch9.addConstraint(Sketcher.Constraint("Radius", 0, Q("1.499998 mm")))
sketch9.addConstraint(Sketcher.Constraint("DistanceX", 0, 3, 2, 3, Q("1 mm")))
sketch9.addConstraint(Sketcher.Constraint("DistanceX", 0, 1, 2, 3, Q("1 mm")))
sketch9.addConstraint(Sketcher.Constraint("DistanceX", 0, 3, -1, 1, Q("3.8 mm")))
sketch9.addConstraint(Sketcher.Constraint("Distance", 3, Q("1.064002 mm")))
sketch9.addConstraint(Sketcher.Constraint("Radius", 2, Q("1.500355 mm")))
sketch9.addConstraint(Sketcher.Constraint("DistanceY", -1, 1, 1, 2, Q("1.499642 mm")))
pocket4 = body.newObject("PartDesign::Pocket", "Pocket003")
pocket4.Profile = sketch9
pocket4.Type = "ThroughAll"
pocket4.Midplane = True

# Sketch on YZ plane
sketch10 = body.newObject("Sketcher::SketchObject", "Sketch009")
sketch10.AttachmentSupport = (doc.getObject("YZ_Plane"), [""])
sketch10.MapMode = "FlatFace"
sketch10.AttachmentOffset = App.Placement(App.Vector(0, 0, 10.3), App.Rotation())
sketch10.addGeometry(Part.Circle(App.Vector(0, 6, 0), App.Vector(0, 0, 1), 2.5), False)
sketch10.addGeometry(Part.Circle(App.Vector(0, -6, 0), App.Vector(0, 0, 1), 2.5), False)
sketch10.addConstraint(Sketcher.Constraint("Equal", 0, 1))
sketch10.addConstraint(Sketcher.Constraint("Symmetric", 0, 3, 1, 3, -1, 1))
sketch10.addConstraint(Sketcher.Constraint("PointOnObject", 0, 3, -2))
sketch10.addConstraint(Sketcher.Constraint("Diameter", 0, Q("5 mm")))
sketch10.addConstraint(Sketcher.Constraint("DistanceY", -1, 1, 0, 3, Q("6 mm")))
pocket5 = body.newObject("PartDesign::Pocket", "Pocket004")
pocket5.Profile = sketch10
pocket5.Length = 6.3

# Sketch on YZ plane
sketch11 = body.newObject("Sketcher::SketchObject", "Sketch010")
sketch11.AttachmentSupport = (doc.getObject("YZ_Plane"), [""])
sketch11.MapMode = "FlatFace"
sketch11.AttachmentOffset = App.Placement(App.Vector(0, 0, 10.3), App.Rotation())
sketch11.addGeometry(Part.Circle(App.Vector(0, 0, 0), App.Vector(0, 0, 1), 2.1), False)
sketch11.addConstraint(Sketcher.Constraint("Coincident", 0, 3, -1, 1))
sketch11.addConstraint(Sketcher.Constraint("Diameter", 0, Q("4.2 mm")))
pocket6 = body.newObject("PartDesign::Pocket", "Pocket005")
pocket6.Profile = sketch11
pocket6.Length = 19

doc.recompute()
